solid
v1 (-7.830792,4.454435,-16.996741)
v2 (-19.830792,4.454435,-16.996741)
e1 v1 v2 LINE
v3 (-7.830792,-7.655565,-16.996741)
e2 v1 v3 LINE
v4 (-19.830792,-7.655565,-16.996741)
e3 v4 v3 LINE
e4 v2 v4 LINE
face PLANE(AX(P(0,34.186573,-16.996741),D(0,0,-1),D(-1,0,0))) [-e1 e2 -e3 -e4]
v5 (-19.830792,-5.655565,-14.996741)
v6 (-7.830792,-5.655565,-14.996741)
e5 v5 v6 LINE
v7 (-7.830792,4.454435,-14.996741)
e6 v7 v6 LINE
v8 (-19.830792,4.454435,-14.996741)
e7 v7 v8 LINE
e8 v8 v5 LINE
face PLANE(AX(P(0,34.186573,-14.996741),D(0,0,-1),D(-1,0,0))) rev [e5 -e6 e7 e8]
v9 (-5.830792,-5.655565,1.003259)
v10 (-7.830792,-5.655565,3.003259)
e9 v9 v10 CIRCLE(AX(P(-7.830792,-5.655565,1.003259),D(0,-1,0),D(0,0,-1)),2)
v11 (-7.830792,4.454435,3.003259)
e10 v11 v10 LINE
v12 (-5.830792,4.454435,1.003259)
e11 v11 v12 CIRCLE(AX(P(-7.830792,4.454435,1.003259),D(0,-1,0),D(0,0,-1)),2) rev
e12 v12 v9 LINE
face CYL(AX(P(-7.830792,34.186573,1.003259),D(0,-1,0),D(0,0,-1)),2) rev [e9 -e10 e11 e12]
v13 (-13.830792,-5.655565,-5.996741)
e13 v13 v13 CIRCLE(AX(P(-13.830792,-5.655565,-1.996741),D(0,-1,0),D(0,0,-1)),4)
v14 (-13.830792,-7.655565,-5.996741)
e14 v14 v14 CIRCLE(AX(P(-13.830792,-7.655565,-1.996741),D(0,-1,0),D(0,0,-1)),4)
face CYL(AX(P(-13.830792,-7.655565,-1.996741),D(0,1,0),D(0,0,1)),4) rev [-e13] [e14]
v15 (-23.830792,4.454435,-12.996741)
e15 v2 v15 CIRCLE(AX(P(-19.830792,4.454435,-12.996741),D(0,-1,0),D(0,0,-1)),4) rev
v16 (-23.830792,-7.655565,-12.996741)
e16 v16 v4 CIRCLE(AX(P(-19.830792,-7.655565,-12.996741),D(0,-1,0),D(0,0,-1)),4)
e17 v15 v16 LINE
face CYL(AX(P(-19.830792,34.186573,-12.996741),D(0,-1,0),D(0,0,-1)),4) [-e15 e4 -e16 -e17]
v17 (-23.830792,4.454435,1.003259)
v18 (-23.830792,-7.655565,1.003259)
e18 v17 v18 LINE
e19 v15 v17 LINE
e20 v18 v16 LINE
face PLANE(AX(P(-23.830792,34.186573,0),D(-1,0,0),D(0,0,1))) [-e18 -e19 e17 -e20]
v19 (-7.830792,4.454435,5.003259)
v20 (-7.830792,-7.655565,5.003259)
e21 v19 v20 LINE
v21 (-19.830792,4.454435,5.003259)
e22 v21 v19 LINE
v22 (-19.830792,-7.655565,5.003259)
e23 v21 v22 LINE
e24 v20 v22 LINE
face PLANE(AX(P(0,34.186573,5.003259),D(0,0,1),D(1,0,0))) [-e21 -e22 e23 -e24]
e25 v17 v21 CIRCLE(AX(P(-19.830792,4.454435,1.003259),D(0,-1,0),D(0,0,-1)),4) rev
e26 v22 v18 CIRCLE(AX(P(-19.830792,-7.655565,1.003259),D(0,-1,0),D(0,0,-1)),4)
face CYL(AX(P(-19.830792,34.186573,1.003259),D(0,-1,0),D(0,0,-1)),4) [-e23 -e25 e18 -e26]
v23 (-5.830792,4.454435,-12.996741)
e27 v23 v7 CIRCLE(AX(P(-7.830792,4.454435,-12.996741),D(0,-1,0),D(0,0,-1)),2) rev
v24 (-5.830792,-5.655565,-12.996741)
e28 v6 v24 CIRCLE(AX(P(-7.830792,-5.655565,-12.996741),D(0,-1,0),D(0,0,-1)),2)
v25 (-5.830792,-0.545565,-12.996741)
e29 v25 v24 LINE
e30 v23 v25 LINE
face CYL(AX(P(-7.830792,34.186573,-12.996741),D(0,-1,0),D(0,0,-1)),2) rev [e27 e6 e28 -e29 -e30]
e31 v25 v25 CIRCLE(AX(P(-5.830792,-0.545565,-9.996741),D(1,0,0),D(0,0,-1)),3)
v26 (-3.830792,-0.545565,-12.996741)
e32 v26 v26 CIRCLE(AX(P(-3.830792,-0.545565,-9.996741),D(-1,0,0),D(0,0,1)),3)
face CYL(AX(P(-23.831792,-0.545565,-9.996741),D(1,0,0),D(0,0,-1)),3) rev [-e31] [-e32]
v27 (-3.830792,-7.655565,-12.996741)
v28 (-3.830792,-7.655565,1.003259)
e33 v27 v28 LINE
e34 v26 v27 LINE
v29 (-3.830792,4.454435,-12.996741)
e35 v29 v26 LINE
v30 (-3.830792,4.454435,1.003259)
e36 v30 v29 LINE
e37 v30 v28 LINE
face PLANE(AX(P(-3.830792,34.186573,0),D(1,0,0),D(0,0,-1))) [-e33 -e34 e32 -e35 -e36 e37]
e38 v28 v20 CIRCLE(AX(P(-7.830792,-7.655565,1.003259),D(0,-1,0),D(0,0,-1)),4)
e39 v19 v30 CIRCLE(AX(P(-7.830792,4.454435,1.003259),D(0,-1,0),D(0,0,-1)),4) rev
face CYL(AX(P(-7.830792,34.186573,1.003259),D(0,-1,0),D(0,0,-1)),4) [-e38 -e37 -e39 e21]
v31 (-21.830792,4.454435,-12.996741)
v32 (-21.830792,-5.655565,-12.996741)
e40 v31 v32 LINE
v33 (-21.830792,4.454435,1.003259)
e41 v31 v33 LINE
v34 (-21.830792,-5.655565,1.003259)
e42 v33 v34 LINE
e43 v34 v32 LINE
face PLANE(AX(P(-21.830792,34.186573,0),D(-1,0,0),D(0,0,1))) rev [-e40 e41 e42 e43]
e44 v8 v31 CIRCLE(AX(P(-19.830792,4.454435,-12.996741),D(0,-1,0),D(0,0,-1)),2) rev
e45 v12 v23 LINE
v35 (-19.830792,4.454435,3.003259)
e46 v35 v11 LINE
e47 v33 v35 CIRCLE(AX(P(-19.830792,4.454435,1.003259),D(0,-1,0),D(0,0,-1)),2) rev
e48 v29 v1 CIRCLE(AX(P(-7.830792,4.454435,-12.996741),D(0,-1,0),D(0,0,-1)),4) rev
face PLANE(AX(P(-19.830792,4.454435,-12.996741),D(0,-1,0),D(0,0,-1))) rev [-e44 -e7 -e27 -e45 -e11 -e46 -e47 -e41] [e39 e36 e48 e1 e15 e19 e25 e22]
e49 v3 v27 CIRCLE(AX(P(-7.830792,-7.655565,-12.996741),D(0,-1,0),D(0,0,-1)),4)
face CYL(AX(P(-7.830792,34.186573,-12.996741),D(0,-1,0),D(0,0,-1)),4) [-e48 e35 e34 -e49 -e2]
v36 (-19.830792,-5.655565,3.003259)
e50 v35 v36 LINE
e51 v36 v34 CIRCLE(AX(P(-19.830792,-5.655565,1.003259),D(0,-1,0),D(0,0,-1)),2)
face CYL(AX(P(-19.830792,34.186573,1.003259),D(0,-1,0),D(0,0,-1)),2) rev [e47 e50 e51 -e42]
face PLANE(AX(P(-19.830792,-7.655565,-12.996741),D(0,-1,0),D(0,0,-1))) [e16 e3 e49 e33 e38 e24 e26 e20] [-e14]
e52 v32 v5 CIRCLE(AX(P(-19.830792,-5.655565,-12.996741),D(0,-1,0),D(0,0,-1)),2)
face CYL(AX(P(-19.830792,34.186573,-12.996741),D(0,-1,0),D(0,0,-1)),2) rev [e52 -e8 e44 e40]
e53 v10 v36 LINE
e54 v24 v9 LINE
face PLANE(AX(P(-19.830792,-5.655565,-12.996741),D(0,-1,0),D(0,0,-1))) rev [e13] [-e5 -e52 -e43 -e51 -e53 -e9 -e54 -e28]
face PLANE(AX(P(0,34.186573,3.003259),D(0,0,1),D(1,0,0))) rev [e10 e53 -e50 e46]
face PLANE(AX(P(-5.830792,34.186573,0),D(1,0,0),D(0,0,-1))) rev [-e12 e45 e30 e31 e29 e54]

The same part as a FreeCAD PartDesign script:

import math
import FreeCAD as App
import Part
import Sketcher
from FreeCAD import Vector

doc = App.newDocument("Part")
params = doc.addObject("Spreadsheet::Sheet", "Params")
for row, (alias, value) in enumerate([
    ("sketch1_radius", "4 mm"),
    ("sketch1_radius2", "2 mm"),
    ("sketch1_width", "12 mm"),
    ("sketch1_height", "14 mm"),
    ("pad1_length", "10.11 mm"),
    ("sketch2_diameter", "8 mm"),
    ("sketch2_width", "12 mm"),
    ("sketch2_height", "14 mm"),
    ("pad2_length", "2 mm"),
    ("sketch3_diameter", "6 mm"),
], start=1):
    params.set(f"A{row}", alias)
    params.set(f"B{row}", "=" + value)
    params.setAlias(f"B{row}", alias)

body = doc.addObject("PartDesign::Body", "Body")

sketch1 = body.newObject("Sketcher::SketchObject", "Sketch")
sketch1.AttachmentSupport = (doc.getObject("XZ_Plane"), [""])
sketch1.MapMode = "FlatFace"
sketch1.AttachmentOffset = App.Placement(Vector(0, 0, 5.655565), App.Rotation())
sketch1.addGeometry(Part.LineSegment(Vector(-3.8, -13, 0), Vector(-3.8, 1, 0)), False)
sketch1.addGeometry(Part.ArcOfCircle(Part.Circle(Vector(-7.8, 1, 0), Vector(0, 0, 1), 4), math.radians(0), math.radians(90)), False)
sketch1.addGeometry(Part.LineSegment(Vector(-7.8, 5, 0), Vector(-19.8, 5, 0)), False)
sketch1.addGeometry(Part.ArcOfCircle(Part.Circle(Vector(-19.8, 1, 0), Vector(0, 0, 1), 4), math.radians(90), math.radians(180)), False)
sketch1.addGeometry(Part.LineSegment(Vector(-23.8, 1, 0), Vector(-23.8, -13, 0)), False)
sketch1.addGeometry(Part.ArcOfCircle(Part.Circle(Vector(-19.8, -13, 0), Vector(0, 0, 1), 4), math.radians(180), math.radians(270)), False)
sketch1.addGeometry(Part.LineSegment(Vector(-19.8, -17, 0), Vector(-7.8, -17, 0)), False)
sketch1.addGeometry(Part.ArcOfCircle(Part.Circle(Vector(-7.8, -13, 0), Vector(0, 0, 1), 4), math.radians(-90), math.radians(0)), False)
sketch1.addGeometry(Part.ArcOfCircle(Part.Circle(Vector(-19.8, -13, 0), Vector(0, 0, 1), 2), math.radians(180), math.radians(270)), False)
sketch1.addGeometry(Part.LineSegment(Vector(-21.8, -13, 0), Vector(-21.8, 1, 0)), False)
sketch1.addGeometry(Part.ArcOfCircle(Part.Circle(Vector(-19.8, 1, 0), Vector(0, 0, 1), 2), math.radians(90), math.radians(180)), False)
sketch1.addGeometry(Part.LineSegment(Vector(-19.8, 3, 0), Vector(-7.8, 3, 0)), False)
sketch1.addGeometry(Part.ArcOfCircle(Part.Circle(Vector(-7.8, 1, 0), Vector(0, 0, 1), 2), math.radians(0), math.radians(90)), False)
sketch1.addGeometry(Part.LineSegment(Vector(-5.8, 1, 0), Vector(-5.8, -13, 0)), False)
sketch1.addGeometry(Part.ArcOfCircle(Part.Circle(Vector(-7.8, -13, 0), Vector(0, 0, 1), 2), math.radians(-90), math.radians(0)), False)
sketch1.addGeometry(Part.LineSegment(Vector(-7.8, -15, 0), Vector(-19.8, -15, 0)), False)
sketch1.addConstraint(Sketcher.Constraint("Tangent", 0, 2, 1, 1))
sketch1.addConstraint(Sketcher.Constraint("Tangent", 1, 2, 2, 1))
sketch1.addConstraint(Sketcher.Constraint("Tangent", 2, 2, 3, 1))
sketch1.addConstraint(Sketcher.Constraint("Tangent", 3, 2, 4, 1))
sketch1.addConstraint(Sketcher.Constraint("Tangent", 4, 2, 5, 1))
sketch1.addConstraint(Sketcher.Constraint("Tangent", 5, 2, 6, 1))
sketch1.addConstraint(Sketcher.Constraint("Tangent", 6, 2, 7, 1))
sketch1.addConstraint(Sketcher.Constraint("Tangent", 7, 2, 0, 1))
sketch1.addConstraint(Sketcher.Constraint("Tangent", 8, 1, 9, 1))
sketch1.addConstraint(Sketcher.Constraint("Tangent", 9, 2, 10, 2))
sketch1.addConstraint(Sketcher.Constraint("Tangent", 10, 1, 11, 1))
sketch1.addConstraint(Sketcher.Constraint("Tangent", 11, 2, 12, 2))
sketch1.addConstraint(Sketcher.Constraint("Tangent", 12, 1, 13, 1))
sketch1.addConstraint(Sketcher.Constraint("Tangent", 13, 2, 14, 2))
sketch1.addConstraint(Sketcher.Constraint("Tangent", 14, 1, 15, 1))
sketch1.addConstraint(Sketcher.Constraint("Tangent", 15, 2, 8, 2))
sketch1.addConstraint(Sketcher.Constraint("Vertical", 0))
sketch1.addConstraint(Sketcher.Constraint("Horizontal", 2))
sketch1.addConstraint(Sketcher.Constraint("Vertical", 4))
sketch1.addConstraint(Sketcher.Constraint("Horizontal", 6))
sketch1.addConstraint(Sketcher.Constraint("Vertical", 9))
sketch1.addConstraint(Sketcher.Constraint("Horizontal", 11))
sketch1.addConstraint(Sketcher.Constraint("Vertical", 13))
sketch1.addConstraint(Sketcher.Constraint("Horizontal", 15))
sketch1.addConstraint(Sketcher.Constraint("Coincident", 8, 3, 5, 3))
sketch1.addConstraint(Sketcher.Constraint("Coincident", 10, 3, 3, 3))
sketch1.addConstraint(Sketcher.Constraint("Coincident", 12, 3, 1, 3))
sketch1.addConstraint(Sketcher.Constraint("Equal", 1, 3))
sketch1.addConstraint(Sketcher.Constraint("Equal", 3, 5))
sketch1.addConstraint(Sketcher.Constraint("Equal", 5, 7))
sketch1.addConstraint(Sketcher.Constraint("Equal", 12, 14))
sketch1.addConstraint(Sketcher.Constraint("Radius", 1, 4.0))
sketch1.addConstraint(Sketcher.Constraint("Radius", 8, 2.0))
sketch1.addConstraint(Sketcher.Constraint("DistanceX", 2, 2, 2, 1, 12.0))
sketch1.addConstraint(Sketcher.Constraint("DistanceY", 0, 1, 0, 2, 14.0))
sketch1.addConstraint(Sketcher.Constraint("DistanceX", 1, 3, -1, 1, 7.830792))
sketch1.addConstraint(Sketcher.Constraint("DistanceY", -1, 1, 1, 3, 1.003259))
sketch1.setExpression("Constraints[31]", "Params.sketch1_radius")
sketch1.setExpression("Constraints[32]", "Params.sketch1_radius2")
sketch1.setExpression("Constraints[33]", "Params.sketch1_width")
sketch1.setExpression("Constraints[34]", "Params.sketch1_height")
pad1 = body.newObject("PartDesign::Pad", "Pad")
pad1.Profile = sketch1
pad1.setExpression("Length", "Params.pad1_length")
pad1.Reversed = True

sketch2 = body.newObject("Sketcher::SketchObject", "Sketch001")
sketch2.AttachmentSupport = (doc.getObject("XZ_Plane"), [""])
sketch2.MapMode = "FlatFace"
sketch2.AttachmentOffset = App.Placement(Vector(0, 0, 5.655565), App.Rotation())
sketch2.addGeometry(Part.LineSegment(Vector(-7.8, 5, 0), Vector(-19.8, 5, 0)), False)
sketch2.addGeometry(Part.ArcOfCircle(Part.Circle(Vector(-19.8, 1, 0), Vector(0, 0, 1), 4), math.radians(90), math.radians(180)), False)
sketch2.addGeometry(Part.LineSegment(Vector(-23.8, 1, 0), Vector(-23.8, -13, 0)), False)
sketch2.addGeometry(Part.ArcOfCircle(Part.Circle(Vector(-19.8, -13, 0), Vector(0, 0, 1), 4), math.radians(180), math.radians(270)), False)
sketch2.addGeometry(Part.LineSegment(Vector(-19.8, -17, 0), Vector(-7.8, -17, 0)), False)
sketch2.addGeometry(Part.ArcOfCircle(Part.Circle(Vector(-7.8, -13, 0), Vector(0, 0, 1), 4), math.radians(-90), math.radians(0)), False)
sketch2.addGeometry(Part.LineSegment(Vector(-3.8, -13, 0), Vector(-3.8, 1, 0)), False)
sketch2.addGeometry(Part.ArcOfCircle(Part.Circle(Vector(-7.8, 1, 0), Vector(0, 0, 1), 4), math.radians(0), math.radians(90)), False)
sketch2.addGeometry(Part.Circle(Vector(-13.8, -2, 0), Vector(0, 0, 1), 4), False)
sketch2.addConstraint(Sketcher.Constraint("Tangent", 0, 2, 1, 1))
sketch2.addConstraint(Sketcher.Constraint("Tangent", 1, 2, 2, 1))
sketch2.addConstraint(Sketcher.Constraint("Tangent", 2, 2, 3, 1))
sketch2.addConstraint(Sketcher.Constraint("Tangent", 3, 2, 4, 1))
sketch2.addConstraint(Sketcher.Constraint("Tangent", 4, 2, 5, 1))
sketch2.addConstraint(Sketcher.Constraint("Tangent", 5, 2, 6, 1))
sketch2.addConstraint(Sketcher.Constraint("Tangent", 6, 2, 7, 1))
sketch2.addConstraint(Sketcher.Constraint("Tangent", 7, 2, 0, 1))
sketch2.addConstraint(Sketcher.Constraint("Horizontal", 0))
sketch2.addConstraint(Sketcher.Constraint("Vertical", 2))
sketch2.addConstraint(Sketcher.Constraint("Horizontal", 4))
sketch2.addConstraint(Sketcher.Constraint("Vertical", 6))
sketch2.addConstraint(Sketcher.Constraint("Equal", 1, 3))
sketch2.addConstraint(Sketcher.Constraint("Equal", 3, 5))
sketch2.addConstraint(Sketcher.Constraint("Equal", 5, 7))
sketch2.addConstraint(Sketcher.Constraint("Equal", 7, 8))
sketch2.addConstraint(Sketcher.Constraint("Diameter", 8, 8.0))
sketch2.addConstraint(Sketcher.Constraint("DistanceX", 0, 2, 0, 1, 12.0))
sketch2.addConstraint(Sketcher.Constraint("DistanceY", 2, 2, 2, 1, 14.0))
sketch2.addConstraint(Sketcher.Constraint("DistanceX", 8, 3, 7, 3, 6.0))
sketch2.addConstraint(Sketcher.Constraint("DistanceY", 8, 3, 7, 3, 3.0))
sketch2.addConstraint(Sketcher.Constraint("DistanceX", 1, 3, -1, 1, 19.830792))
sketch2.addConstraint(Sketcher.Constraint("DistanceY", -1, 1, 1, 3, 1.003259))
sketch2.setExpression("Constraints[16]", "Params.sketch2_diameter")
sketch2.setExpression("Constraints[17]", "Params.sketch2_width")
sketch2.setExpression("Constraints[18]", "Params.sketch2_height")
pad2 = body.newObject("PartDesign::Pad", "Pad001")
pad2.Profile = sketch2
pad2.setExpression("Length", "Params.pad2_length")

sketch3 = body.newObject("Sketcher::SketchObject", "Sketch002")
sketch3.AttachmentSupport = (doc.getObject("YZ_Plane"), [""])
sketch3.MapMode = "FlatFace"
sketch3.AttachmentOffset = App.Placement(Vector(0, 0, -3.830792), App.Rotation())
sketch3.addGeometry(Part.Circle(Vector(-0.5, -10, 0), Vector(0, 0, 1), 3), False)
sketch3.addConstraint(Sketcher.Constraint("Diameter", 0, 6.0))
sketch3.addConstraint(Sketcher.Constraint("DistanceY", 0, 3, -1, 1, 9.996741))
sketch3.addConstraint(Sketcher.Constraint("DistanceX", 0, 3, -1, 1, 0.545565))
sketch3.setExpression("Constraints[0]", "Params.sketch3_diameter")
pocket1 = body.newObject("PartDesign::Pocket", "Pocket")
pocket1.Profile = sketch3
pocket1.Type = "UpToFirst"

doc.recompute()
